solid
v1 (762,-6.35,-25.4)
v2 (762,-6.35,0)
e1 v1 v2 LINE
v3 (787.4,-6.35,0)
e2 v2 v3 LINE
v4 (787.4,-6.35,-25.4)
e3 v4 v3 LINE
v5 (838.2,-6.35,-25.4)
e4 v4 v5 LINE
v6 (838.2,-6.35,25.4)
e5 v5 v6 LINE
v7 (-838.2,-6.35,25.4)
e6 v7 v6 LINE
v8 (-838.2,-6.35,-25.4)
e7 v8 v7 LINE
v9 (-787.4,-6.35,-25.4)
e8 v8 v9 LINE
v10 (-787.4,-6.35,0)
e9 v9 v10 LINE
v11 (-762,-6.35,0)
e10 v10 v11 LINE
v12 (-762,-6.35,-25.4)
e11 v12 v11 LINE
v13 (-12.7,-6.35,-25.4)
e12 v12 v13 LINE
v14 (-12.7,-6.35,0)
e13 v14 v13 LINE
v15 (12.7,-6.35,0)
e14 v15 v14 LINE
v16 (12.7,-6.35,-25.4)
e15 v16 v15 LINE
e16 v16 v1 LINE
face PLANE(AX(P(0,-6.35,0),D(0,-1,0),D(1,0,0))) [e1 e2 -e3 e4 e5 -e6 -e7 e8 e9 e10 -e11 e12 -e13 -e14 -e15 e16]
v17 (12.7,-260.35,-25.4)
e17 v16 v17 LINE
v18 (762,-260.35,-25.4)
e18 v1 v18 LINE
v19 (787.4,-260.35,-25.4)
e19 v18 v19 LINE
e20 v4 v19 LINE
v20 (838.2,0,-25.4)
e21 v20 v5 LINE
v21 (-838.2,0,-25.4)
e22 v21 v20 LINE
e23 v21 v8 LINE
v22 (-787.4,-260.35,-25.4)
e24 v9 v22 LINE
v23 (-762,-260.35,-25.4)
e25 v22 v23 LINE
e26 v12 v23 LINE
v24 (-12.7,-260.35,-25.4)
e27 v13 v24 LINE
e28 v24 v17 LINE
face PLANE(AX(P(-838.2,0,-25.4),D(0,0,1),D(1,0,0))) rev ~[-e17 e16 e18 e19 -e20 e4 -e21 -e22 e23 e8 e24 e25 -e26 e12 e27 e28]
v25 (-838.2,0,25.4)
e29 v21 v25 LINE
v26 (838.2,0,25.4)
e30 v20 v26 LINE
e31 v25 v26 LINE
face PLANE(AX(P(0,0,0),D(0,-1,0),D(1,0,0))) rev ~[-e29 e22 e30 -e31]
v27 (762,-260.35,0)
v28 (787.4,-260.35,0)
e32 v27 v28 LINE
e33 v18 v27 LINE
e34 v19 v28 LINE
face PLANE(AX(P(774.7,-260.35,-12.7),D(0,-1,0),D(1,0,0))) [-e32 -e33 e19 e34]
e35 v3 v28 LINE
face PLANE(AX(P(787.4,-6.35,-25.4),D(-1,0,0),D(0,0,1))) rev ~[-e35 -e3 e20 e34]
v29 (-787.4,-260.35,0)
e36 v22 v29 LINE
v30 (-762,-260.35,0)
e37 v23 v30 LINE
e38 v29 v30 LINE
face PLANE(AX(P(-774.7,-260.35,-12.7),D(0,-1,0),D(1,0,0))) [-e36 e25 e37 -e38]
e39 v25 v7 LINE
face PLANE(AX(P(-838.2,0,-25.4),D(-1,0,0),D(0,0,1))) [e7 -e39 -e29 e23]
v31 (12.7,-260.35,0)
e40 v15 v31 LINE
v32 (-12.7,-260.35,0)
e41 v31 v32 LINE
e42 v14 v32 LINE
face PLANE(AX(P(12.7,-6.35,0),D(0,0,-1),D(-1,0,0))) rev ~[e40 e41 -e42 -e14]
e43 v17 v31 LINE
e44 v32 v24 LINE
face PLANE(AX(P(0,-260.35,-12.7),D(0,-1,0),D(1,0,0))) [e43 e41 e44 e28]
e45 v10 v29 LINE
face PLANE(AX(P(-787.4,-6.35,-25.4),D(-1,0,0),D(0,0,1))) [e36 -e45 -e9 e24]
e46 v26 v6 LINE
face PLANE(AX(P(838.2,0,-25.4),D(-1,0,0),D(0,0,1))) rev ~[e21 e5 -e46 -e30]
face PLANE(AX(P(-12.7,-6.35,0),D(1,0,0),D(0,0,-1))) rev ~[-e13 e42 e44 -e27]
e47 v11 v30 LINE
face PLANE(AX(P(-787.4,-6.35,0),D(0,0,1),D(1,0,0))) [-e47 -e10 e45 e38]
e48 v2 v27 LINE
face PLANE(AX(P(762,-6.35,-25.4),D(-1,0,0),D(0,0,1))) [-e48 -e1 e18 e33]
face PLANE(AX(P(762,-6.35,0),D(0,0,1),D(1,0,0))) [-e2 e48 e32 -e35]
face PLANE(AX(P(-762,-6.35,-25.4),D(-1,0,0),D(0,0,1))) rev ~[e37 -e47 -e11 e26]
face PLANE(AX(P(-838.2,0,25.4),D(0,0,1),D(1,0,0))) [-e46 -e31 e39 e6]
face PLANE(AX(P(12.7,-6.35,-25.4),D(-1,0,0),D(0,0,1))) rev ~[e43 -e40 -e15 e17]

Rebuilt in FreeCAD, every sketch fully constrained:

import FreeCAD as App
import Part
import Sketcher
from FreeCAD import Vector
Q = App.Units.Quantity

doc = App.newDocument("Part")
body = doc.addObject("PartDesign::Body", "Body")

# Sketch on XZ plane
sketch1 = body.newObject("Sketcher::SketchObject", "Sketch")
sketch1.AttachmentSupport = (doc.getObject("XZ_Plane"), [""])
sketch1.MapMode = "FlatFace"
sketch1.addGeometry([
    Part.LineSegment(Vector(-838, 25, 0), Vector(-838, -25, 0)),
    Part.LineSegment(Vector(-838, -25, 0), Vector(838, -25, 0)),
    Part.LineSegment(Vector(838, -25, 0), Vector(838, 25, 0)),
    Part.LineSegment(Vector(838, 25, 0), Vector(-838, 25, 0)),
], False)
sketch1.addConstraint([
    Sketcher.Constraint("Coincident", 0, 2, 1, 1),
    Sketcher.Constraint("Coincident", 1, 2, 2, 1),
    Sketcher.Constraint("Coincident", 2, 2, 3, 1),
    Sketcher.Constraint("Coincident", 3, 2, 0, 1),
    Sketcher.Constraint("Vertical", 0),
    Sketcher.Constraint("Horizontal", 1),
    Sketcher.Constraint("Vertical", 2),
    Sketcher.Constraint("Horizontal", 3),
    Sketcher.Constraint("Symmetric", 0, 2, 2, 2, -1, 1),
    Sketcher.Constraint("DistanceX", 1, 1, 1, 2, Q("66 in")),
    Sketcher.Constraint("DistanceY", 0, 2, 0, 1, Q("2 in")),
])
pad1 = body.newObject("PartDesign::Pad", "Pad")
pad1.Profile = sketch1
pad1.Length = Q("0.25 in")

# Sketch on XZ plane
sketch2 = body.newObject("Sketcher::SketchObject", "Sketch001")
sketch2.AttachmentSupport = (doc.getObject("XZ_Plane"), [""])
sketch2.MapMode = "FlatFace"
sketch2.AttachmentOffset = App.Placement(Vector(0, 0, 0.25 * 25.4), App.Rotation())
sketch2.addGeometry([
    Part.LineSegment(Vector(-787, 0, 0), Vector(-787, -25, 0)),  # 0
    Part.LineSegment(Vector(-787, -25, 0), Vector(-762, -25, 0)),  # 1
    Part.LineSegment(Vector(-762, -25, 0), Vector(-762, 0, 0)),  # 2
    Part.LineSegment(Vector(-762, 0, 0), Vector(-787, 0, 0)),  # 3
    Part.LineSegment(Vector(762, 0, 0), Vector(762, -25, 0)),  # 4
    Part.LineSegment(Vector(762, -25, 0), Vector(787, -25, 0)),  # 5
    Part.LineSegment(Vector(787, -25, 0), Vector(787, 0, 0)),  # 6
    Part.LineSegment(Vector(787, 0, 0), Vector(762, 0, 0)),  # 7
    Part.LineSegment(Vector(-13, 0, 0), Vector(-13, -25, 0)),  # 8
    Part.LineSegment(Vector(-13, -25, 0), Vector(13, -25, 0)),  # 9
    Part.LineSegment(Vector(13, -25, 0), Vector(13, 0, 0)),  # 10
    Part.LineSegment(Vector(13, 0, 0), Vector(-13, 0, 0)),  # 11
], False)
sketch2.addConstraint([
    Sketcher.Constraint("Coincident", 0, 2, 1, 1),
    Sketcher.Constraint("Coincident", 1, 2, 2, 1),
    Sketcher.Constraint("Coincident", 2, 2, 3, 1),
    Sketcher.Constraint("Coincident", 3, 2, 0, 1),
    Sketcher.Constraint("Coincident", 4, 2, 5, 1),
    Sketcher.Constraint("Coincident", 5, 2, 6, 1),
    Sketcher.Constraint("Coincident", 6, 2, 7, 1),
    Sketcher.Constraint("Coincident", 7, 2, 4, 1),
    Sketcher.Constraint("Coincident", 8, 2, 9, 1),
    Sketcher.Constraint("Coincident", 9, 2, 10, 1),
    Sketcher.Constraint("Coincident", 10, 2, 11, 1),
    Sketcher.Constraint("Coincident", 11, 2, 8, 1),
    Sketcher.Constraint("Vertical", 0),
    Sketcher.Constraint("Horizontal", 1),
    Sketcher.Constraint("Vertical", 2),
    Sketcher.Constraint("Horizontal", 3),
    Sketcher.Constraint("Vertical", 4),
    Sketcher.Constraint("Horizontal", 5),
    Sketcher.Constraint("Vertical", 6),
    Sketcher.Constraint("Horizontal", 7),
    Sketcher.Constraint("Vertical", 8),
    Sketcher.Constraint("Horizontal", 9),
    Sketcher.Constraint("Vertical", 10),
    Sketcher.Constraint("Horizontal", 11),
    Sketcher.Constraint("Symmetric", 3, 2, 6, 2, -1, 1),
    Sketcher.Constraint("Symmetric", 10, 2, 11, 2, -1, 1),
    Sketcher.Constraint("Symmetric", 1, 2, 4, 2, -2),
    Sketcher.Constraint("PointOnObject", 2, 2, -1),
    Sketcher.Constraint("Horizontal", 5, 2, 8, 2),
    Sketcher.Constraint("Equal", 7, 9),
    Sketcher.Constraint("Equal", 11, 0),
    Sketcher.Constraint("DistanceX", 1, 1, 1, 2, Q("1 in")),
    Sketcher.Constraint("DistanceX", 0, 2, -1, 1, Q("31 in")),
])
pad2 = body.newObject("PartDesign::Pad", "Pad001")
pad2.Profile = sketch2
pad2.Length = Q("10 in")

doc.recompute()
